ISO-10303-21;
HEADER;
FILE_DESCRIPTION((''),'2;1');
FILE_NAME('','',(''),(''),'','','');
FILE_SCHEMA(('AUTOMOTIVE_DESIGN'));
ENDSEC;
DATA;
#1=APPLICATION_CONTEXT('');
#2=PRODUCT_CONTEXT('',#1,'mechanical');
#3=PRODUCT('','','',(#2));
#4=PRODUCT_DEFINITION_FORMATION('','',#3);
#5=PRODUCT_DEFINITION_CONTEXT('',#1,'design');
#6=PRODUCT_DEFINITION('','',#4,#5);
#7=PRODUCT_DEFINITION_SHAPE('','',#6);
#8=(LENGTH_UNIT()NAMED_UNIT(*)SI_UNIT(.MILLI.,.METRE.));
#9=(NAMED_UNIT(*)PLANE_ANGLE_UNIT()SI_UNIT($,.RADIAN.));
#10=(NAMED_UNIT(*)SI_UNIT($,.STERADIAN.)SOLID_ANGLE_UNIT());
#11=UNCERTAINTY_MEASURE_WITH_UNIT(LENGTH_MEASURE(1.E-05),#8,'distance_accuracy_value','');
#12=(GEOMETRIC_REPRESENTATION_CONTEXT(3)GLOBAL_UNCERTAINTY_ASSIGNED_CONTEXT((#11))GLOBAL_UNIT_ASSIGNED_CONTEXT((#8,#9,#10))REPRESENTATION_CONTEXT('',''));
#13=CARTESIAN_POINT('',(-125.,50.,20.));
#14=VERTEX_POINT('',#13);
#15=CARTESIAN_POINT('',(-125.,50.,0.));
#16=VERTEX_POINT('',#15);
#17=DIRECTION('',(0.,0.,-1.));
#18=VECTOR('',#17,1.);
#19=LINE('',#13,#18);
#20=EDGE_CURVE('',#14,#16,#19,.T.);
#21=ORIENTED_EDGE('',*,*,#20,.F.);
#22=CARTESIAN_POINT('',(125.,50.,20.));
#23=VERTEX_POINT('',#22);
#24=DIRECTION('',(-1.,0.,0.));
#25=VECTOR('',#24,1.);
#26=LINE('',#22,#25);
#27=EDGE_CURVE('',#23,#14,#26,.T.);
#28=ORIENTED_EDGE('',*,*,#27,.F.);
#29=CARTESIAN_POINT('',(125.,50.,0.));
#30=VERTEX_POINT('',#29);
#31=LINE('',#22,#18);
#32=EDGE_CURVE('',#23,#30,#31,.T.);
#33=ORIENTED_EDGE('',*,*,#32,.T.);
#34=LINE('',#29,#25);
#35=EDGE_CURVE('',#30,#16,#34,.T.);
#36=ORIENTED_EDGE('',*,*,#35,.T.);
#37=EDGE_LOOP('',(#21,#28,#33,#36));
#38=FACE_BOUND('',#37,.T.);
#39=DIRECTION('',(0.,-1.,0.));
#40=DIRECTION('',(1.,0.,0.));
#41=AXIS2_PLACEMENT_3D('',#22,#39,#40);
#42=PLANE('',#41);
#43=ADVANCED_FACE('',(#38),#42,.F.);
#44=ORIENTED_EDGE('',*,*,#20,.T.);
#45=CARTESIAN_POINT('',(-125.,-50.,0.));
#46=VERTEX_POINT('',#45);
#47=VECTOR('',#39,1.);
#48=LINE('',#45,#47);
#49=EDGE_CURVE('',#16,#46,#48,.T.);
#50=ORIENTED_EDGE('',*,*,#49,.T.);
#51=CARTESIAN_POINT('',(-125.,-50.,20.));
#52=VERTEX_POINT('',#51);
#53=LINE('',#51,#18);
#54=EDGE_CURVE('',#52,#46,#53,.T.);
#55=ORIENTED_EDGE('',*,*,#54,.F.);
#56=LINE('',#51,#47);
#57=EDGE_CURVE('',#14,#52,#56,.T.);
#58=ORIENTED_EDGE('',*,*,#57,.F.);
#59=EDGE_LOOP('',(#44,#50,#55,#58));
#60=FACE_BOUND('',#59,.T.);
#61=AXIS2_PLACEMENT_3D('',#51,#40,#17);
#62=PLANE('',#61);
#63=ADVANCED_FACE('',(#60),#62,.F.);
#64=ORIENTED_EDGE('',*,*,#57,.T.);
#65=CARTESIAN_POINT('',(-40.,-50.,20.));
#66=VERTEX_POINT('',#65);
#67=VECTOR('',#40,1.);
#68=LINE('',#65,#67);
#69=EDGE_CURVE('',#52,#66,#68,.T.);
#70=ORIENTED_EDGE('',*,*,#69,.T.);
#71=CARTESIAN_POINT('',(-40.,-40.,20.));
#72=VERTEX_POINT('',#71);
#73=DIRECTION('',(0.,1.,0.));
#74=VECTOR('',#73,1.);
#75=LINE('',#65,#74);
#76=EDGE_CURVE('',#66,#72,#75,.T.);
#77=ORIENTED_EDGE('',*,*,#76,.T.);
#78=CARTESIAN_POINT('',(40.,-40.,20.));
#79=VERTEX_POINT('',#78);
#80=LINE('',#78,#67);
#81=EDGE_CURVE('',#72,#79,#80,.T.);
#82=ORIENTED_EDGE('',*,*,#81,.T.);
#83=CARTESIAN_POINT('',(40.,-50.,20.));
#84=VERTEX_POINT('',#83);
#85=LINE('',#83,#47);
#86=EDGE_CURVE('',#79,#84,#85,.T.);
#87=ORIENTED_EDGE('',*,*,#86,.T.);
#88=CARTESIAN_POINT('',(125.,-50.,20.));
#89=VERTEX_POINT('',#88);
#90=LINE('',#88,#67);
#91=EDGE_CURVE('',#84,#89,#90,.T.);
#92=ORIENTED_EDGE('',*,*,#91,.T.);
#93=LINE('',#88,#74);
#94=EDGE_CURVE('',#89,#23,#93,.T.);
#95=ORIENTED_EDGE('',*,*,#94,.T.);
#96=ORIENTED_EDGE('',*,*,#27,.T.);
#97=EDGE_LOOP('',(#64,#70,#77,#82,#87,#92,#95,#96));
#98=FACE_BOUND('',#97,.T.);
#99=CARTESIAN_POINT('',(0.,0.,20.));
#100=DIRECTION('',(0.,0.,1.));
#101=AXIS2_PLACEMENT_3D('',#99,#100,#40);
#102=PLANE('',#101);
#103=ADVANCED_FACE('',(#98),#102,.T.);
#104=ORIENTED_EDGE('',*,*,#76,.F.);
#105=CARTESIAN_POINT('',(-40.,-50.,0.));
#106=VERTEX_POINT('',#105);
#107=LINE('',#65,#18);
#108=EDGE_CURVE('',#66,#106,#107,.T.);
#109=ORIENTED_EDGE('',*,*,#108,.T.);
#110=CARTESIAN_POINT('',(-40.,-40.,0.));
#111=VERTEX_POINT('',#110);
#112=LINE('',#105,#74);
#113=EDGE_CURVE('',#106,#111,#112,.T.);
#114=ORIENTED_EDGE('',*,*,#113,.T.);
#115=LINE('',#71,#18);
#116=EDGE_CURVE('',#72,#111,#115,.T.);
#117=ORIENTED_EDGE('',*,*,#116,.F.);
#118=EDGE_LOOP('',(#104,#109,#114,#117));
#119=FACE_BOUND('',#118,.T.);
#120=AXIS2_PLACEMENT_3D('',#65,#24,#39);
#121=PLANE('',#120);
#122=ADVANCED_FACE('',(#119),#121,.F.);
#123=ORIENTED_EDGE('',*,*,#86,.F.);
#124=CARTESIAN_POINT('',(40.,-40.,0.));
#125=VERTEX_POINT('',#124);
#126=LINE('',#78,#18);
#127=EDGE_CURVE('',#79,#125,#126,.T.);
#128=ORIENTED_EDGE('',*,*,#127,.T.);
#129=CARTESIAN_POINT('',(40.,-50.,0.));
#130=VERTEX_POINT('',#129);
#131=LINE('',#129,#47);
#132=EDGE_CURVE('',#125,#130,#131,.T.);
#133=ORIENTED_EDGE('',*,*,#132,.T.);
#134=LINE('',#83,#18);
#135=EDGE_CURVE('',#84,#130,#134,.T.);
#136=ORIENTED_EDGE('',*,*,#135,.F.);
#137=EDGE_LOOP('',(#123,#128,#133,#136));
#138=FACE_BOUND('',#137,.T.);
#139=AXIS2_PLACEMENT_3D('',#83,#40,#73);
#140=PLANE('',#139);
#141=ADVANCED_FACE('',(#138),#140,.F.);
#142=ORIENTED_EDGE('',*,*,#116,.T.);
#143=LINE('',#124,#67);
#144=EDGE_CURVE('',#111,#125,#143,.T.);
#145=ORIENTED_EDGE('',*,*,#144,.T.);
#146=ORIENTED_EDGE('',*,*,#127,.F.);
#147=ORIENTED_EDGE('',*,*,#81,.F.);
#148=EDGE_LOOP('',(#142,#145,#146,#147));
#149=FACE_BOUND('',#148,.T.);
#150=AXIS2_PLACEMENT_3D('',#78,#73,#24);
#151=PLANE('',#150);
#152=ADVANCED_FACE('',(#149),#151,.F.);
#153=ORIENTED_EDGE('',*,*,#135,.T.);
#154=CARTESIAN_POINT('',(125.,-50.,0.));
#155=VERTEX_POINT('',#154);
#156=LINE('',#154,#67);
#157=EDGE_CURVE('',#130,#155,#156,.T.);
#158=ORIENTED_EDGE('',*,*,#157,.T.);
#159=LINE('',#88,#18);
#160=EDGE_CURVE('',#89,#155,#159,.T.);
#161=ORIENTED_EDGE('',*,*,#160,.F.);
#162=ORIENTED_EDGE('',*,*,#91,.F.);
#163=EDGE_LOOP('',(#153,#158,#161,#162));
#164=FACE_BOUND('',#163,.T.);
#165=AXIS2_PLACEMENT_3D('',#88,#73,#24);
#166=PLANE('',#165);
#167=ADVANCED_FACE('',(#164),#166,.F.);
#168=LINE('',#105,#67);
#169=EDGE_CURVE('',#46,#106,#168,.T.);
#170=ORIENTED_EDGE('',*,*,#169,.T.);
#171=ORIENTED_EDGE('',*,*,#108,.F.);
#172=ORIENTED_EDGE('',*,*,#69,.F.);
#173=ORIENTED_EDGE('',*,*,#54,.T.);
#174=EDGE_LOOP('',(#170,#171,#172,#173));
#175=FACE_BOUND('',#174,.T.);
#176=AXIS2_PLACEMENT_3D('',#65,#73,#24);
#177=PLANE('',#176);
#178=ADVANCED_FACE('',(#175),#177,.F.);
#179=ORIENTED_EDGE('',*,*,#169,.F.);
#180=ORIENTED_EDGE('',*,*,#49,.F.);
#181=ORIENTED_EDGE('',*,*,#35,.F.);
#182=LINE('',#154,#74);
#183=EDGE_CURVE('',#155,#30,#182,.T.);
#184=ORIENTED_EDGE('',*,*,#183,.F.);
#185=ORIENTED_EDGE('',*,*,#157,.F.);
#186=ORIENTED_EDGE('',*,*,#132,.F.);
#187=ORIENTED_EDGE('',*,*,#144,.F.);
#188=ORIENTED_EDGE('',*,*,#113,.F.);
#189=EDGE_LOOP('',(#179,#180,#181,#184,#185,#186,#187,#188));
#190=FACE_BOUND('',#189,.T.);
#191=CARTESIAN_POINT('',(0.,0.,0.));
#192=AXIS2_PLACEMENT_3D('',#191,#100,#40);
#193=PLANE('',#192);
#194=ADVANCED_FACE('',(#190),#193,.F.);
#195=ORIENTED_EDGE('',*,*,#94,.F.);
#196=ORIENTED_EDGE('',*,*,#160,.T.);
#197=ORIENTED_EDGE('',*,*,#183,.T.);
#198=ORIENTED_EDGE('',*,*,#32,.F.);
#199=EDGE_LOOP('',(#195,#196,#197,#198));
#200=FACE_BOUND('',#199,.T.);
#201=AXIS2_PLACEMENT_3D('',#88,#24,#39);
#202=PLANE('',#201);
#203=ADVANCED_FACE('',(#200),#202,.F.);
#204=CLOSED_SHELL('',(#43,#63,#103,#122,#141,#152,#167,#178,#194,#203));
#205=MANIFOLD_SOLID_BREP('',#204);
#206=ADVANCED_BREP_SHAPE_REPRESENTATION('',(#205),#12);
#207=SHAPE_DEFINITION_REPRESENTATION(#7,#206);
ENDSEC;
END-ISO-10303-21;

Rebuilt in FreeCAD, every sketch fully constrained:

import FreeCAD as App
import Part
import Sketcher
Q = App.Units.Quantity


def add_polygon(sketch, points):
    """Adds a closed chain of lines whose ends are joined by coincident constraints."""
    first, n = sketch.GeometryCount, len(points)
    for a, b in zip(points, points[1:] + points[:1]):
        sketch.addGeometry(Part.LineSegment(App.Vector(*a, 0), App.Vector(*b, 0)), False)
    for i in range(n):
        sketch.addConstraint(Sketcher.Constraint("Coincident", first + i, 2, first + (i + 1) % n, 1))

doc = App.newDocument("Part")
params = doc.addObject("Spreadsheet::Sheet", "Params")
for row, (alias, value) in enumerate([
    ("sketch1_width", "85 mm"),
    ("sketch1_width2", "80 mm"),
    ("sketch1_height", "10 mm"),
    ("sketch1_height2", "100 mm"),
    ("pad1_length", "20 mm"),
], start=1):
    params.set(f"A{row}", alias)
    params.set(f"B{row}", "=" + value)
    params.setAlias(f"B{row}", alias)

body = doc.addObject("PartDesign::Body", "Body")

# Sketch on XY plane
sketch1 = body.newObject("Sketcher::SketchObject", "Sketch")
sketch1.AttachmentSupport = (doc.getObject("XY_Plane"), [""])
sketch1.MapMode = "FlatFace"
add_polygon(sketch1, [(-125, -50), (-40, -50), (-40, -40), (40, -40), (40, -50), (125, -50), (125, 50), (-125, 50)])  # lines 0-7
sketch1.addConstraint([
    Sketcher.Constraint("Horizontal", 0),
    Sketcher.Constraint("Vertical", 1),
    Sketcher.Constraint("Horizontal", 2),
    Sketcher.Constraint("Vertical", 3),
    Sketcher.Constraint("Horizontal", 4),
    Sketcher.Constraint("Vertical", 5),
    Sketcher.Constraint("Horizontal", 6),
    Sketcher.Constraint("Vertical", 7),
    Sketcher.Constraint("Symmetric", 4, 2, 6, 2, -1, 1),
    Sketcher.Constraint("Symmetric", 0, 2, 3, 2, -2),
    Sketcher.Constraint("DistanceX", 0, 1, 0, 2, Q("85 mm")),
    Sketcher.Constraint("DistanceX", 2, 1, 2, 2, Q("80 mm")),
    Sketcher.Constraint("DistanceY", 1, 1, 1, 2, Q("10 mm")),
    Sketcher.Constraint("DistanceY", 5, 1, 5, 2, Q("100 mm")),
])
sketch1.setExpression("Constraints[18]", "Params.sketch1_width")
sketch1.setExpression("Constraints[19]", "Params.sketch1_width2")
sketch1.setExpression("Constraints[20]", "Params.sketch1_height")
sketch1.setExpression("Constraints[21]", "Params.sketch1_height2")
pad1 = body.newObject("PartDesign::Pad", "Pad")
pad1.Profile = sketch1
pad1.setExpression("Length", "Params.pad1_length")

doc.recompute()
